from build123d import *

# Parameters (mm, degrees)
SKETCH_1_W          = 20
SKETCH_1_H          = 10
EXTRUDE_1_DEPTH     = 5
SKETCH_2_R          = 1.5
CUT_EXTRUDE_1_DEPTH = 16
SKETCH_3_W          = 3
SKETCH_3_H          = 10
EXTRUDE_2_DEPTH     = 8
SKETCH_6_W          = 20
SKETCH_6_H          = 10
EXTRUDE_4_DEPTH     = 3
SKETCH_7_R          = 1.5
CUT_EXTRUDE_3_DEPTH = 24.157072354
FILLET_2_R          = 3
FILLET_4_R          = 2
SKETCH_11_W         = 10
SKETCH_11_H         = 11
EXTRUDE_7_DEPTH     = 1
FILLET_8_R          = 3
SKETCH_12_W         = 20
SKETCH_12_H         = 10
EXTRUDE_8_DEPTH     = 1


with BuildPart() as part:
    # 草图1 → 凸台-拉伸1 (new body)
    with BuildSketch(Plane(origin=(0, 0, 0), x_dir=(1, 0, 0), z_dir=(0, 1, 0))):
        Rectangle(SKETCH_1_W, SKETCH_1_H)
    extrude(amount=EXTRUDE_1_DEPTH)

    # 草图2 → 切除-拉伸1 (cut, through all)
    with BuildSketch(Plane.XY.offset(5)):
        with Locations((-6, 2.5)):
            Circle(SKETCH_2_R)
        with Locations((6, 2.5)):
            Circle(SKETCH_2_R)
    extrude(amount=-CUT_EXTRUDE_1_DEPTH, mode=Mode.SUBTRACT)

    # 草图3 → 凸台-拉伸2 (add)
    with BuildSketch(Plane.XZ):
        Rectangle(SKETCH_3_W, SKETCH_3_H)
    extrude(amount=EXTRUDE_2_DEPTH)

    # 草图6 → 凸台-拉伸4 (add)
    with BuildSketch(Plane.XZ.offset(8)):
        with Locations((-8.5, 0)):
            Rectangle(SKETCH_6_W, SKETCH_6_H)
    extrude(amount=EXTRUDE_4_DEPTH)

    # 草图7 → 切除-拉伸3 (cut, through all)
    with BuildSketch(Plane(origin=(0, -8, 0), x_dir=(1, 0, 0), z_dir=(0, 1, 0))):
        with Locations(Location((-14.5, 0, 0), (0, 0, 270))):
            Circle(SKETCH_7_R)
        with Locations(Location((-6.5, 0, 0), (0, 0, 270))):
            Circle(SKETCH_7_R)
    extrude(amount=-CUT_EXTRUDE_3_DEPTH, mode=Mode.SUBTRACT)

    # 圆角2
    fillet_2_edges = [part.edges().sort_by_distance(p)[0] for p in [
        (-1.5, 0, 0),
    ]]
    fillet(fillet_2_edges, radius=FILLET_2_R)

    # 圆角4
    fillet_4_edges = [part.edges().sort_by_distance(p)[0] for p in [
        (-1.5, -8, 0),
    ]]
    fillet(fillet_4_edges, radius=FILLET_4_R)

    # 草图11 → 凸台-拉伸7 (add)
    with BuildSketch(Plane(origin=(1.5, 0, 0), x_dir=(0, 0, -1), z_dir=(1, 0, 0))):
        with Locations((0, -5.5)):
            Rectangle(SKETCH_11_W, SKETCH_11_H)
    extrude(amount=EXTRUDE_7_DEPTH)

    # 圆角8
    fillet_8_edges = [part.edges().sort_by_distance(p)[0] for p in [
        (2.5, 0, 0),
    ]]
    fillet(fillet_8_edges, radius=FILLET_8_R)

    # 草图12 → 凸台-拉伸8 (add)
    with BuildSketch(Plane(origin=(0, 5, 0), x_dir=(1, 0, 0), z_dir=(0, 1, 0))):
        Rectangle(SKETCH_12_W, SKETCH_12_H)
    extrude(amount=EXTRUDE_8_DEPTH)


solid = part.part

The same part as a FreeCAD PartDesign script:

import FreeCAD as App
import Part
import Sketcher

V = App.Vector
Q = App.Units.Quantity


def edges_at(feature, points):
    """Names of the edges that pass closest to the given points."""
    edges = feature.Shape.Edges
    near = lambda p: min(range(len(edges)), key=lambda i: edges[i].distToShape(Part.Vertex(*p))[0])
    return sorted({f"Edge{near(p) + 1}" for p in points})


def add_polygon(sketch, points):
    """Adds a closed chain of lines whose ends are joined by coincident constraints."""
    first, n = sketch.GeometryCount, len(points)
    for a, b in zip(points, points[1:] + points[:1]):
        sketch.addGeometry(Part.LineSegment(App.Vector(*a, 0), App.Vector(*b, 0)), False)
    for i in range(n):
        sketch.addConstraint(Sketcher.Constraint("Coincident", first + i, 2, first + (i + 1) % n, 1))

doc = App.newDocument("Part")
body = doc.addObject("PartDesign::Body", "Body")

# Sketch on XZ plane
sketch1 = body.newObject("Sketcher::SketchObject", "Sketch")
sketch1.AttachmentSupport = (doc.getObject("XZ_Plane"), [""])
sketch1.MapMode = "FlatFace"
add_polygon(sketch1, [(-10, -5), (-10, 5), (10, 5), (10, -5)])  # lines 0-3
sketch1.addConstraint(Sketcher.Constraint("Vertical", 0))
sketch1.addConstraint(Sketcher.Constraint("Horizontal", 1))
sketch1.addConstraint(Sketcher.Constraint("Vertical", 2))
sketch1.addConstraint(Sketcher.Constraint("Horizontal", 3))
sketch1.addConstraint(Sketcher.Constraint("Symmetric", 0, 2, 2, 2, -1, 1))
sketch1.addConstraint(Sketcher.Constraint("DistanceX", 1, 1, 1, 2, Q("20 mm")))
sketch1.addConstraint(Sketcher.Constraint("DistanceY", 0, 1, 0, 2, Q("10 mm")))
pad1 = body.newObject("PartDesign::Pad", "Pad")
pad1.Profile = sketch1
pad1.Length = 5
pad1.Reversed = True

# Sketch on XY plane
sketch2 = body.newObject("Sketcher::SketchObject", "Sketch001")
sketch2.AttachmentSupport = (doc.getObject("XY_Plane"), [""])
sketch2.MapMode = "FlatFace"
sketch2.AttachmentOffset = App.Placement(V(0, 0, 5), App.Rotation())
sketch2.addGeometry(Part.Circle(V(-6, 2.5, 0), V(0, 0, 1), 1.5), False)
sketch2.addGeometry(Part.Circle(V(6, 2.5, 0), V(0, 0, 1), 1.5), False)
sketch2.addConstraint(Sketcher.Constraint("Equal", 0, 1))
sketch2.addConstraint(Sketcher.Constraint("Symmetric", 0, 3, 1, 3, -2))
sketch2.addConstraint(Sketcher.Constraint("Diameter", 0, Q("3 mm")))
sketch2.addConstraint(Sketcher.Constraint("DistanceX", 0, 3, -1, 1, Q("6 mm")))
sketch2.addConstraint(Sketcher.Constraint("DistanceY", -1, 1, 0, 3, Q("2.5 mm")))
pocket1 = body.newObject("PartDesign::Pocket", "Pocket")
pocket1.Profile = sketch2
pocket1.Type = "ThroughAll"

# Sketch on XZ plane
sketch3 = body.newObject("Sketcher::SketchObject", "Sketch002")
sketch3.AttachmentSupport = (doc.getObject("XZ_Plane"), [""])
sketch3.MapMode = "FlatFace"
add_polygon(sketch3, [(-1.5, 5), (-1.5, -5), (1.5, -5), (1.5, 5)])  # lines 0-3
sketch3.addConstraint(Sketcher.Constraint("Vertical", 0))
sketch3.addConstraint(Sketcher.Constraint("Horizontal", 1))
sketch3.addConstraint(Sketcher.Constraint("Vertical", 2))
sketch3.addConstraint(Sketcher.Constraint("Horizontal", 3))
sketch3.addConstraint(Sketcher.Constraint("Symmetric", 0, 2, 2, 2, -1, 1))
sketch3.addConstraint(Sketcher.Constraint("DistanceX", 1, 1, 1, 2, Q("3 mm")))
sketch3.addConstraint(Sketcher.Constraint("DistanceY", 0, 2, 0, 1, Q("10 mm")))
pad2 = body.newObject("PartDesign::Pad", "Pad001")
pad2.Profile = sketch3
pad2.Length = 8

# Sketch on XZ plane
sketch4 = body.newObject("Sketcher::SketchObject", "Sketch003")
sketch4.AttachmentSupport = (doc.getObject("XZ_Plane"), [""])
sketch4.MapMode = "FlatFace"
sketch4.AttachmentOffset = App.Placement(V(0, 0, 8), App.Rotation())
add_polygon(sketch4, [(-18, 5), (-18, -5), (2, -5), (2, 5)])  # lines 0-3
sketch4.addConstraint(Sketcher.Constraint("Vertical", 0))
sketch4.addConstraint(Sketcher.Constraint("Horizontal", 1))
sketch4.addConstraint(Sketcher.Constraint("Vertical", 2))
sketch4.addConstraint(Sketcher.Constraint("Horizontal", 3))
sketch4.addConstraint(Sketcher.Constraint("DistanceX", 1, 1, 1, 2, Q("20 mm")))
sketch4.addConstraint(Sketcher.Constraint("DistanceY", 0, 2, 0, 1, Q("10 mm")))
sketch4.addConstraint(Sketcher.Constraint("DistanceY", 0, 2, -1, 1, Q("5 mm")))
sketch4.addConstraint(Sketcher.Constraint("DistanceX", 0, 2, -1, 1, Q("18.5 mm")))
pad3 = body.newObject("PartDesign::Pad", "Pad002")
pad3.Profile = sketch4
pad3.Length = 3

# Sketch on XZ plane
sketch5 = body.newObject("Sketcher::SketchObject", "Sketch004")
sketch5.AttachmentSupport = (doc.getObject("XZ_Plane"), [""])
sketch5.MapMode = "FlatFace"
sketch5.AttachmentOffset = App.Placement(V(0, 0, 8), App.Rotation())
sketch5.addGeometry(Part.Circle(V(-14.5, 0, 0), V(0, 0, 1), 1.5), False)
sketch5.addGeometry(Part.Circle(V(-6.5, 0, 0), V(0, 0, 1), 1.5), False)
sketch5.addConstraint(Sketcher.Constraint("Equal", 0, 1))
sketch5.addConstraint(Sketcher.Constraint("PointOnObject", 0, 3, -1))
sketch5.addConstraint(Sketcher.Constraint("PointOnObject", 1, 3, -1))
sketch5.addConstraint(Sketcher.Constraint("Diameter", 0, Q("3 mm")))
sketch5.addConstraint(Sketcher.Constraint("DistanceX", 0, 3, 1, 3, Q("8 mm")))
sketch5.addConstraint(Sketcher.Constraint("DistanceX", 0, 3, -1, 1, Q("14.5 mm")))
pocket2 = body.newObject("PartDesign::Pocket", "Pocket001")
pocket2.Profile = sketch5
pocket2.Type = "ThroughAll"
pocket2.Reversed = True
doc.recompute()

fillet = body.newObject("PartDesign::Fillet", "Fillet")
fillet.Base = (pocket2, edges_at(pocket2, [(-1.5, 0, 0)]))
fillet.Radius = 3
doc.recompute()

fillet2 = body.newObject("PartDesign::Fillet", "Fillet001")
fillet2.Base = (fillet, edges_at(fillet, [(-1.5, -8, 0)]))
fillet2.Radius = 2

# Sketch on YZ plane
sketch6 = body.newObject("Sketcher::SketchObject", "Sketch005")
sketch6.AttachmentSupport = (doc.getObject("YZ_Plane"), [""])
sketch6.MapMode = "FlatFace"
sketch6.AttachmentOffset = App.Placement(V(0, 0, 1.5), App.Rotation())
add_polygon(sketch6, [(0, 5), (-11, 5), (-11, -5), (0, -5)])  # lines 0-3
sketch6.addConstraint(Sketcher.Constraint("Horizontal", 0))
sketch6.addConstraint(Sketcher.Constraint("Vertical", 1))
sketch6.addConstraint(Sketcher.Constraint("Horizontal", 2))
sketch6.addConstraint(Sketcher.Constraint("Vertical", 3))
sketch6.addConstraint(Sketcher.Constraint("Symmetric", 2, 2, 3, 2, -1, 1))
sketch6.addConstraint(Sketcher.Constraint("DistanceX", 0, 2, 0, 1, Q("11 mm")))
sketch6.addConstraint(Sketcher.Constraint("DistanceY", 1, 2, 1, 1, Q("10 mm")))
pad4 = body.newObject("PartDesign::Pad", "Pad003")
pad4.Profile = sketch6
pad4.Length = 1
doc.recompute()

fillet3 = body.newObject("PartDesign::Fillet", "Fillet002")
fillet3.Base = (pad4, edges_at(pad4, [(2.5, 0, 0)]))
fillet3.Radius = 3

# Sketch on XZ plane
sketch7 = body.newObject("Sketcher::SketchObject", "Sketch006")
sketch7.AttachmentSupport = (doc.getObject("XZ_Plane"), [""])
sketch7.MapMode = "FlatFace"
sketch7.AttachmentOffset = App.Placement(V(0, 0, -5), App.Rotation())
add_polygon(sketch7, [(-10, -5), (-10, 5), (10, 5), (10, -5)])  # lines 0-3
sketch7.addConstraint(Sketcher.Constraint("Vertical", 0))
sketch7.addConstraint(Sketcher.Constraint("Horizontal", 1))
sketch7.addConstraint(Sketcher.Constraint("Vertical", 2))
sketch7.addConstraint(Sketcher.Constraint("Horizontal", 3))
sketch7.addConstraint(Sketcher.Constraint("Symmetric", 0, 2, 2, 2, -1, 1))
sketch7.addConstraint(Sketcher.Constraint("DistanceX", 1, 1, 1, 2, Q("20 mm")))
sketch7.addConstraint(Sketcher.Constraint("DistanceY", 0, 1, 0, 2, Q("10 mm")))
pad5 = body.newObject("PartDesign::Pad", "Pad004")
pad5.Profile = sketch7
pad5.Length = 1
pad5.Reversed = True

doc.recompute()
